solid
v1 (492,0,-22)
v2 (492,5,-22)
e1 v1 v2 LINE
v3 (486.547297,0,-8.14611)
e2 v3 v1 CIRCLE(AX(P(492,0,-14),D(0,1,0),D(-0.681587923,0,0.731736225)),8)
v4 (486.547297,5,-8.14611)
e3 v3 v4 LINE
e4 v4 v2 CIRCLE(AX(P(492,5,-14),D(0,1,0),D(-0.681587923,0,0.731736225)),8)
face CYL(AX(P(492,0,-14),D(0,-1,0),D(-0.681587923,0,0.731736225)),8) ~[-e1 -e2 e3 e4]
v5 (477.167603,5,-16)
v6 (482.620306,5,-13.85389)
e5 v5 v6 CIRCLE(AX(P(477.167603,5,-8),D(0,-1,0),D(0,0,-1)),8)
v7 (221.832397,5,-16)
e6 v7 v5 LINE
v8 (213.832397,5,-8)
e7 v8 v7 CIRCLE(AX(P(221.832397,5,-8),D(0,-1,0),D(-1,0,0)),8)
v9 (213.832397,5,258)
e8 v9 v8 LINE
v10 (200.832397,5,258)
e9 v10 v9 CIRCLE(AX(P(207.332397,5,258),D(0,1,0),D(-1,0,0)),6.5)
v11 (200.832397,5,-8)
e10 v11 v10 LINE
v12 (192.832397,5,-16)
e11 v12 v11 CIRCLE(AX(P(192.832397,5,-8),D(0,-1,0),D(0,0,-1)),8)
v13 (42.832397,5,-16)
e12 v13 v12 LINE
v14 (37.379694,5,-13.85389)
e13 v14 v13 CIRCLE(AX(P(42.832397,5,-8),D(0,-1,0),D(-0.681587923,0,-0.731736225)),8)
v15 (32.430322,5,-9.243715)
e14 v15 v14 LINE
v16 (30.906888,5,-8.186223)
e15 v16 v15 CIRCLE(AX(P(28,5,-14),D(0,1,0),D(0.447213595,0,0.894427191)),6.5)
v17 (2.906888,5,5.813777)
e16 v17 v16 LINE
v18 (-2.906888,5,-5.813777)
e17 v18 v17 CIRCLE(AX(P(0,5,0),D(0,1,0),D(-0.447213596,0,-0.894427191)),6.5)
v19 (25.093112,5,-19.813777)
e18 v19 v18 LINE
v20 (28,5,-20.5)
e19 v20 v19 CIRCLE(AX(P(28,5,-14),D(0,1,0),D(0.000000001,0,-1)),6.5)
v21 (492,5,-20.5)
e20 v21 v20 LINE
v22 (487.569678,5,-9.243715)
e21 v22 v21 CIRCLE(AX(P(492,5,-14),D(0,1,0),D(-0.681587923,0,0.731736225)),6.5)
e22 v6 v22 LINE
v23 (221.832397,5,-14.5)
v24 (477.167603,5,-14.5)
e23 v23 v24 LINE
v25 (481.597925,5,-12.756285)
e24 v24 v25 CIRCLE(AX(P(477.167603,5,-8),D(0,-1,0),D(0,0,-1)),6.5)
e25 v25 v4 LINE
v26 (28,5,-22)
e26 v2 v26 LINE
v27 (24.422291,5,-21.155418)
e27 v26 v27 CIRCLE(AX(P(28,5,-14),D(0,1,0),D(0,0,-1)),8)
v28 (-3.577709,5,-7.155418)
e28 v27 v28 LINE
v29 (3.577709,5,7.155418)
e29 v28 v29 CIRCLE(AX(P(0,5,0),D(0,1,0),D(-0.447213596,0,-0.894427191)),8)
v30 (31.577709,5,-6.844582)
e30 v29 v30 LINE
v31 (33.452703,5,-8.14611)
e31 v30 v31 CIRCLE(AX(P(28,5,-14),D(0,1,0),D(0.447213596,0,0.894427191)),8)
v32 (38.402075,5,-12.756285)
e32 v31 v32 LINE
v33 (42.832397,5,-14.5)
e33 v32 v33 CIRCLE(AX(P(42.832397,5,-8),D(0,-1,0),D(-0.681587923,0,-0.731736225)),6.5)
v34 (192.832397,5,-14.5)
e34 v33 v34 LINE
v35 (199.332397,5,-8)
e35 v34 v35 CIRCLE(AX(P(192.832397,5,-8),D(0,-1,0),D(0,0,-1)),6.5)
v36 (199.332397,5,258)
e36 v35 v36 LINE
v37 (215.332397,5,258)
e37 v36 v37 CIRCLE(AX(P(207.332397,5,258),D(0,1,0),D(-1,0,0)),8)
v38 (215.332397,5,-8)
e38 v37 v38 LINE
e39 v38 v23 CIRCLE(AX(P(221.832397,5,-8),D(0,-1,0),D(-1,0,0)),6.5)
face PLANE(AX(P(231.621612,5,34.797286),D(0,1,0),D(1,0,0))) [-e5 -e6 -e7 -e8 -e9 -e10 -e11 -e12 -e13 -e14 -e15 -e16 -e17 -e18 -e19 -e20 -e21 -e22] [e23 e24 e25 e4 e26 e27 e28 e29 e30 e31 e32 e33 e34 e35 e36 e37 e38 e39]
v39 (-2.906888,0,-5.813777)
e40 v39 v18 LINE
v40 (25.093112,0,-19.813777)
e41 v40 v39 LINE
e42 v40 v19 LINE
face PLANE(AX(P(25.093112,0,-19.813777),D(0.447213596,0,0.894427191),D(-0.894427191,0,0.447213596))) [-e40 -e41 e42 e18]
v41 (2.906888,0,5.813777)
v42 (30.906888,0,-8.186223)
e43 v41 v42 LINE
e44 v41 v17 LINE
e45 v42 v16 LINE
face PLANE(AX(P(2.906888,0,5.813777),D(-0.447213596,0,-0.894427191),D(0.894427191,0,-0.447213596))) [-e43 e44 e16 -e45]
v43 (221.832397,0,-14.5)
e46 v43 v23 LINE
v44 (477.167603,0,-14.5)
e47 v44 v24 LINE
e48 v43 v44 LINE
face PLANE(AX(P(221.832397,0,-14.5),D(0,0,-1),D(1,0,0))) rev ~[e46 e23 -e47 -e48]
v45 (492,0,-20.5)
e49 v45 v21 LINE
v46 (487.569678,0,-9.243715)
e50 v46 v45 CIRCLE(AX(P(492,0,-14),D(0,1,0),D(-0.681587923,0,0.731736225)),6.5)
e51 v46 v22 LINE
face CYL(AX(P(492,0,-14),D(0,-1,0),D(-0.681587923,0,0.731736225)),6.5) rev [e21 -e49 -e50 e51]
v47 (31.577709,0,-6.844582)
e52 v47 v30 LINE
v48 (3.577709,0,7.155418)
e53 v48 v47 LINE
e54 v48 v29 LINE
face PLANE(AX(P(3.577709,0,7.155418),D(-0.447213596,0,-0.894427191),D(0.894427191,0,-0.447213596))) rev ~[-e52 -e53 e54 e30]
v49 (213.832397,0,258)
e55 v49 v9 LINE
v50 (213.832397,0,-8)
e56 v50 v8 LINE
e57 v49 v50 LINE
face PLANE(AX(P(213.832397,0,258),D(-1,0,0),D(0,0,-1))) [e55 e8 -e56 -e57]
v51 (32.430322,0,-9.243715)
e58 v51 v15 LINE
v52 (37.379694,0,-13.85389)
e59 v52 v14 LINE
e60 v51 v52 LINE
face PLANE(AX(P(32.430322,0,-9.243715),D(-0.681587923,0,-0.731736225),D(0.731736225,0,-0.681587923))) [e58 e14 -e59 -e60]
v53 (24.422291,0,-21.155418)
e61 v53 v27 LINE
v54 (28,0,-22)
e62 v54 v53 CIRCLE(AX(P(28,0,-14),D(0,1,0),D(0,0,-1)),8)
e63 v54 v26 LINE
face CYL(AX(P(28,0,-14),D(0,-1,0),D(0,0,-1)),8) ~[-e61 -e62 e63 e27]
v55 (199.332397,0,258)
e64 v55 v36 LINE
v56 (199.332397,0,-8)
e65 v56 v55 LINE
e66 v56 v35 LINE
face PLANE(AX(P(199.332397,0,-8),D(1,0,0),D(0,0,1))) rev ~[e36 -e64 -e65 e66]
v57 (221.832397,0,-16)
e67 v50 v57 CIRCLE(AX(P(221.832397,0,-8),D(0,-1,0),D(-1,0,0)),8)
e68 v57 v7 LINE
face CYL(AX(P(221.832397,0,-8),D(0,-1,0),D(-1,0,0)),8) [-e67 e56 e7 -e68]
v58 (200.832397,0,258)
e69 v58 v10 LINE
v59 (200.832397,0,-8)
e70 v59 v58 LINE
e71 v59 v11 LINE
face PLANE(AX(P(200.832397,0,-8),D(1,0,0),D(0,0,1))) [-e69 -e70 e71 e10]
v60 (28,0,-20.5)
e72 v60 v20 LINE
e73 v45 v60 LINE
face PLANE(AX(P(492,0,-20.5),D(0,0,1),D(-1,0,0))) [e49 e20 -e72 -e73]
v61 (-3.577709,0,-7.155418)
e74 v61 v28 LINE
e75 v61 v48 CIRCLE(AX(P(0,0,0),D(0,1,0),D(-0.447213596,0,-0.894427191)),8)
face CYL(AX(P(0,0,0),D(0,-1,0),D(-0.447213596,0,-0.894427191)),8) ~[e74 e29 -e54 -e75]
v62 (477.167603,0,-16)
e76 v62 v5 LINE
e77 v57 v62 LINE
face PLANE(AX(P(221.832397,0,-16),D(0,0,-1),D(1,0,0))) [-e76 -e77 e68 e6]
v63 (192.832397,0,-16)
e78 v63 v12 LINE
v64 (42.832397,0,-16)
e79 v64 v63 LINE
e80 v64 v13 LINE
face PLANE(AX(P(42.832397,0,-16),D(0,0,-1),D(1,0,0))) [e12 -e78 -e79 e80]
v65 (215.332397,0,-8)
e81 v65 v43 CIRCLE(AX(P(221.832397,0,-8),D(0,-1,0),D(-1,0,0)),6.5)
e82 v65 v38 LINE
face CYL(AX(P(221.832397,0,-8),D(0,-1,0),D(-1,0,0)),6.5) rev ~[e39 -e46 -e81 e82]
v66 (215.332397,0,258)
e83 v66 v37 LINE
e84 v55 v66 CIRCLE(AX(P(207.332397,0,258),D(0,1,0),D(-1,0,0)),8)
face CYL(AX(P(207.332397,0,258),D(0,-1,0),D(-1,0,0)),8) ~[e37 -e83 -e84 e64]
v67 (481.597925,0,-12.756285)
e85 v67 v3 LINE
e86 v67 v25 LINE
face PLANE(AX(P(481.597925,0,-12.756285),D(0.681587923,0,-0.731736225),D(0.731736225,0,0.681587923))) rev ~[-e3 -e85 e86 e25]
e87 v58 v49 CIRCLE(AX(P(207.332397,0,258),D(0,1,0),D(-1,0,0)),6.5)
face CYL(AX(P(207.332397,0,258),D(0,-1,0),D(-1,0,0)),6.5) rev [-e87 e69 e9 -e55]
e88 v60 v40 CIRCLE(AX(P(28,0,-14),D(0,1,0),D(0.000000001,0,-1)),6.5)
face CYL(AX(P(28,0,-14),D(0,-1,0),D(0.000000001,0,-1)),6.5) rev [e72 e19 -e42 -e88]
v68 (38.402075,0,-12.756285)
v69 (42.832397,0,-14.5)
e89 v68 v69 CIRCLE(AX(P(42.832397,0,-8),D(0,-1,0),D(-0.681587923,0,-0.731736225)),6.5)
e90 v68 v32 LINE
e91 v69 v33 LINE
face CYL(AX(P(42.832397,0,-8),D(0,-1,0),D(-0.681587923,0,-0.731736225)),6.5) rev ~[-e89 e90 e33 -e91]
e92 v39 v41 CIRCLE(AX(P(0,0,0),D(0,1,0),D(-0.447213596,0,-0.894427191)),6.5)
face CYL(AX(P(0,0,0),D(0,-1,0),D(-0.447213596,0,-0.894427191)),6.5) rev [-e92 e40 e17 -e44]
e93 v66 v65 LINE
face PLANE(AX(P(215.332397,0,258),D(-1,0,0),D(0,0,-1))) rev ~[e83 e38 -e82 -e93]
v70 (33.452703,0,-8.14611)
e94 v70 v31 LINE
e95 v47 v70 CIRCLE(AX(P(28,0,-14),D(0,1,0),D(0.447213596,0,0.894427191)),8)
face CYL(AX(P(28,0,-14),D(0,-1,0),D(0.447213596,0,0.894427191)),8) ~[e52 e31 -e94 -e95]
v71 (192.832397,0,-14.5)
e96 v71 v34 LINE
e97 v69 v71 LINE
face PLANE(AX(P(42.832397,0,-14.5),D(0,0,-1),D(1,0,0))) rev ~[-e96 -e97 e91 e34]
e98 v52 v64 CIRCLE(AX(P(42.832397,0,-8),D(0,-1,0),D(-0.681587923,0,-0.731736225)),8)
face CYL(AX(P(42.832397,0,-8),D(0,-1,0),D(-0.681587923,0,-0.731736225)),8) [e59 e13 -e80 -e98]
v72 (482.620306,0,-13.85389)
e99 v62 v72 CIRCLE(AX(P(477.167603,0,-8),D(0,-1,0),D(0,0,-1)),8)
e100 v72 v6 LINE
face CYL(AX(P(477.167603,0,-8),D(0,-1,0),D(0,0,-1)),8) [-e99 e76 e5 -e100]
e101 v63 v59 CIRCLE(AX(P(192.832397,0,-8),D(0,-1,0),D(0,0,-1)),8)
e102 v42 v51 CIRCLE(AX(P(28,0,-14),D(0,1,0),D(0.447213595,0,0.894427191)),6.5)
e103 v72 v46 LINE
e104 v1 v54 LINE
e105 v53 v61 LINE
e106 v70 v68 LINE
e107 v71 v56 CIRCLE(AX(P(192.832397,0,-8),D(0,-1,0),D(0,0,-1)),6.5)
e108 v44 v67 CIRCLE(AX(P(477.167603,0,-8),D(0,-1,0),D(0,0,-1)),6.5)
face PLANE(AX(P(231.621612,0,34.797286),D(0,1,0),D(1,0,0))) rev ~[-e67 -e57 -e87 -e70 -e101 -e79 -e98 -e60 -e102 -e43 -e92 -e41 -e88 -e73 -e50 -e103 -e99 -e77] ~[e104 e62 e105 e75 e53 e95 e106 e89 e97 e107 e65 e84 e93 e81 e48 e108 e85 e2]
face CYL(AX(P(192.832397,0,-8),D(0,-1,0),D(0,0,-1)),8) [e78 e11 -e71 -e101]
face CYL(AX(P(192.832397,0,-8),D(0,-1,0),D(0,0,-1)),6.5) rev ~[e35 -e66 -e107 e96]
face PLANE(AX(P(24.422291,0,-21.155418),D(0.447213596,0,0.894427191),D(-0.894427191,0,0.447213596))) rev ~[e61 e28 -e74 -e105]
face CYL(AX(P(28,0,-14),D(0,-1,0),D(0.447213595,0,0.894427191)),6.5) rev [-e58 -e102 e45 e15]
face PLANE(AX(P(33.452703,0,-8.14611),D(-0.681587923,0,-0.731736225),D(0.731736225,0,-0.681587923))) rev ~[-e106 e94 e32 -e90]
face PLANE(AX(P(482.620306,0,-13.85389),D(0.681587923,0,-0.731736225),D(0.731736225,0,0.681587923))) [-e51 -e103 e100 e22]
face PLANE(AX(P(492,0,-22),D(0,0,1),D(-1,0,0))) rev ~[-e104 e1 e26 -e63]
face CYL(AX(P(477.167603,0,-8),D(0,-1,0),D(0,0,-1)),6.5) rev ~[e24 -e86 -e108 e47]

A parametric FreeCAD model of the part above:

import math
import FreeCAD as App
import Part
import Sketcher
from FreeCAD import Vector
Q = App.Units.Quantity

doc = App.newDocument("Part")
body = doc.addObject("PartDesign::Body", "Body")

# Sketch on XZ plane
sketch1 = body.newObject("Sketcher::SketchObject", "Sketch")
sketch1.AttachmentSupport = (doc.getObject("XZ_Plane"), [""])
sketch1.MapMode = "FlatFace"
sketch1.addGeometry([
    Part.LineSegment(Vector(3.577709, 7.155418, 0), Vector(31.577709, -6.844582, 0)),  # 0
    Part.ArcOfCircle(Part.Circle(Vector(28, -14, 0), Vector(0, 0, 1), 8), math.radians(47.032146), math.radians(63.434949)),  # 1
    Part.LineSegment(Vector(33.452703, -8.14611, 0), Vector(38.402075, -12.756285, 0)),  # 2
    Part.ArcOfCircle(Part.Circle(Vector(42.832397, -8, 0), Vector(0, 0, 1), 6.5), math.radians(-132.967854), math.radians(-90)),  # 3
    Part.LineSegment(Vector(42.832397, -14.5, 0), Vector(192.832397, -14.5, 0)),  # 4
    Part.ArcOfCircle(Part.Circle(Vector(192.832397, -8, 0), Vector(0, 0, 1), 6.5), math.radians(-90), math.radians(0)),  # 5
    Part.LineSegment(Vector(199.332397, -8, 0), Vector(199.332397, 258, 0)),  # 6
    Part.ArcOfCircle(Part.Circle(Vector(207.332397, 258, 0), Vector(0, 0, 1), 8), math.radians(0), math.radians(180)),  # 7
    Part.LineSegment(Vector(215.332397, 258, 0), Vector(215.332397, -8, 0)),  # 8
    Part.ArcOfCircle(Part.Circle(Vector(221.832397, -8, 0), Vector(0, 0, 1), 6.5), math.radians(180), math.radians(270)),  # 9
    Part.LineSegment(Vector(221.832397, -14.5, 0), Vector(477.167603, -14.5, 0)),  # 10
    Part.ArcOfCircle(Part.Circle(Vector(477.167603, -8, 0), Vector(0, 0, 1), 6.5), math.radians(-90), math.radians(-47.032146)),  # 11
    Part.LineSegment(Vector(481.597925, -12.756285, 0), Vector(486.547297, -8.14611, 0)),  # 12
    Part.ArcOfCircle(Part.Circle(Vector(492, -14, 0), Vector(0, 0, 1), 8), math.radians(-90), math.radians(132.967854)),  # 13
    Part.LineSegment(Vector(492, -22, 0), Vector(28, -22, 0)),  # 14
    Part.ArcOfCircle(Part.Circle(Vector(28, -14, 0), Vector(0, 0, 1), 8), math.radians(-116.565051), math.radians(-90)),  # 15
    Part.LineSegment(Vector(24.422291, -21.155418, 0), Vector(-3.577709, -7.155418, 0)),  # 16
    Part.ArcOfCircle(Part.Circle(Vector(0, 0, 0), Vector(0, 0, 1), 8), math.radians(63.434949), math.radians(243.434949)),  # 17
    Part.LineSegment(Vector(30.906888, -8.186223, 0), Vector(2.906888, 5.813777, 0)),  # 18
    Part.ArcOfCircle(Part.Circle(Vector(0, 0, 0), Vector(0, 0, 1), 6.5), math.radians(63.434949), math.radians(243.434949)),  # 19
    Part.LineSegment(Vector(-2.906888, -5.813777, 0), Vector(25.093112, -19.813777, 0)),  # 20
    Part.ArcOfCircle(Part.Circle(Vector(28, -14, 0), Vector(0, 0, 1), 6.5), math.radians(-116.565051), math.radians(-90)),  # 21
    Part.LineSegment(Vector(28, -20.5, 0), Vector(492, -20.5, 0)),  # 22
    Part.ArcOfCircle(Part.Circle(Vector(492, -14, 0), Vector(0, 0, 1), 6.5), math.radians(-90), math.radians(132.967854)),  # 23
    Part.LineSegment(Vector(487.569678, -9.243715, 0), Vector(482.620306, -13.85389, 0)),  # 24
    Part.ArcOfCircle(Part.Circle(Vector(477.167603, -8, 0), Vector(0, 0, 1), 8), math.radians(-90), math.radians(-47.032146)),  # 25
    Part.LineSegment(Vector(477.167603, -16, 0), Vector(221.832397, -16, 0)),  # 26
    Part.ArcOfCircle(Part.Circle(Vector(221.832397, -8, 0), Vector(0, 0, 1), 8), math.radians(-180), math.radians(-90)),  # 27
    Part.LineSegment(Vector(213.832397, -8, 0), Vector(213.832397, 258, 0)),  # 28
    Part.ArcOfCircle(Part.Circle(Vector(207.332397, 258, 0), Vector(0, 0, 1), 6.5), math.radians(0), math.radians(180)),  # 29
    Part.LineSegment(Vector(200.832397, 258, 0), Vector(200.832397, -8, 0)),  # 30
    Part.ArcOfCircle(Part.Circle(Vector(192.832397, -8, 0), Vector(0, 0, 1), 8), math.radians(-90), math.radians(0)),  # 31
    Part.LineSegment(Vector(192.832397, -16, 0), Vector(42.832397, -16, 0)),  # 32
    Part.ArcOfCircle(Part.Circle(Vector(42.832397, -8, 0), Vector(0, 0, 1), 8), math.radians(-132.967854), math.radians(-90)),  # 33
    Part.LineSegment(Vector(37.379694, -13.85389, 0), Vector(32.430322, -9.243715, 0)),  # 34
    Part.ArcOfCircle(Part.Circle(Vector(28, -14, 0), Vector(0, 0, 1), 6.5), math.radians(47.032146), math.radians(63.434949)),  # 35
], False)
sketch1.addConstraint([
    Sketcher.Constraint("Tangent", 0, 2, 1, 2),
    Sketcher.Constraint("Tangent", 1, 1, 2, 1),
    Sketcher.Constraint("Tangent", 2, 2, 3, 1),
    Sketcher.Constraint("Tangent", 3, 2, 4, 1),
    Sketcher.Constraint("Tangent", 4, 2, 5, 1),
    Sketcher.Constraint("Tangent", 5, 2, 6, 1),
    Sketcher.Constraint("Tangent", 6, 2, 7, 2),
    Sketcher.Constraint("Tangent", 7, 1, 8, 1),
    Sketcher.Constraint("Tangent", 8, 2, 9, 1),
    Sketcher.Constraint("Tangent", 9, 2, 10, 1),
    Sketcher.Constraint("Tangent", 10, 2, 11, 1),
    Sketcher.Constraint("Tangent", 11, 2, 12, 1),
    Sketcher.Constraint("Tangent", 12, 2, 13, 2),
    Sketcher.Constraint("Tangent", 13, 1, 14, 1),
    Sketcher.Constraint("Tangent", 14, 2, 15, 2),
    Sketcher.Constraint("Tangent", 15, 1, 16, 1),
    Sketcher.Constraint("Tangent", 16, 2, 17, 2),
    Sketcher.Constraint("Tangent", 17, 1, 0, 1),
    Sketcher.Constraint("Tangent", 18, 2, 19, 1),
    Sketcher.Constraint("Tangent", 19, 2, 20, 1),
    Sketcher.Constraint("Tangent", 20, 2, 21, 1),
    Sketcher.Constraint("Tangent", 21, 2, 22, 1),
    Sketcher.Constraint("Tangent", 22, 2, 23, 1),
    Sketcher.Constraint("Tangent", 23, 2, 24, 1),
    Sketcher.Constraint("Tangent", 24, 2, 25, 2),
    Sketcher.Constraint("Tangent", 25, 1, 26, 1),
    Sketcher.Constraint("Tangent", 26, 2, 27, 2),
    Sketcher.Constraint("Tangent", 27, 1, 28, 1),
    Sketcher.Constraint("Tangent", 28, 2, 29, 1),
    Sketcher.Constraint("Tangent", 29, 2, 30, 1),
    Sketcher.Constraint("Tangent", 30, 2, 31, 2),
    Sketcher.Constraint("Tangent", 31, 1, 32, 1),
    Sketcher.Constraint("Tangent", 32, 2, 33, 2),
    Sketcher.Constraint("Tangent", 33, 1, 34, 1),
    Sketcher.Constraint("Tangent", 34, 2, 35, 1),
    Sketcher.Constraint("Tangent", 35, 2, 18, 1),
    Sketcher.Constraint("Horizontal", 4),
    Sketcher.Constraint("Vertical", 6),
    Sketcher.Constraint("Vertical", 8),
    Sketcher.Constraint("Horizontal", 10),
    Sketcher.Constraint("Horizontal", 14),
    Sketcher.Constraint("Horizontal", 22),
    Sketcher.Constraint("Horizontal", 26),
    Sketcher.Constraint("Vertical", 28),
    Sketcher.Constraint("Vertical", 30),
    Sketcher.Constraint("Horizontal", 32),
    Sketcher.Constraint("Coincident", 17, 3, -1, 1),
    Sketcher.Constraint("Coincident", 19, 3, -1, 1),
    Sketcher.Constraint("Coincident", 15, 3, 1, 3),
    Sketcher.Constraint("Coincident", 21, 3, 1, 3),
    Sketcher.Constraint("Coincident", 23, 3, 13, 3),
    Sketcher.Constraint("Coincident", 25, 3, 11, 3),
    Sketcher.Constraint("Coincident", 27, 3, 9, 3),
    Sketcher.Constraint("Coincident", 29, 3, 7, 3),
    Sketcher.Constraint("Coincident", 31, 3, 5, 3),
    Sketcher.Constraint("Coincident", 33, 3, 3, 3),
    Sketcher.Constraint("Coincident", 35, 3, 1, 3),
    Sketcher.Constraint("Equal", 3, 5),
    Sketcher.Constraint("Equal", 1, 7),
    Sketcher.Constraint("Equal", 5, 9),
    Sketcher.Constraint("Equal", 9, 11),
    Sketcher.Constraint("Equal", 7, 13),
    Sketcher.Constraint("Equal", 13, 15),
    Sketcher.Constraint("Equal", 15, 17),
    Sketcher.Constraint("Equal", 11, 19),
    Sketcher.Constraint("Equal", 19, 21),
    Sketcher.Constraint("Equal", 17, 25),
    Sketcher.Constraint("Equal", 29, 35),
    Sketcher.Constraint("Horizontal", 5, 3, 9, 3),
    Sketcher.Constraint("Horizontal", 2, 2, 11, 2),
    Sketcher.Constraint("Radius", 1, Q("8 mm")),
    Sketcher.Constraint("Radius", 3, Q("6.5 mm")),
    Sketcher.Constraint("DistanceX", 4, 1, 4, 2, Q("150 mm")),
    Sketcher.Constraint("DistanceX", 14, 2, 14, 1, Q("464 mm")),
    Sketcher.Constraint("DistanceY", 6, 1, 6, 2, Q("266 mm")),
    Sketcher.Constraint("DistanceX", -1, 1, 1, 3, Q("28 mm")),
    Sketcher.Constraint("DistanceY", 1, 3, -1, 1, Q("14 mm")),
    Sketcher.Constraint("DistanceY", 3, 3, -1, 1, Q("8 mm")),
    Sketcher.Constraint("DistanceX", 10, 1, 10, 2, Q("255.335206 mm")),
])
pad1 = body.newObject("PartDesign::Pad", "Pad")
pad1.Profile = sketch1
pad1.Length = 5
pad1.Reversed = True

doc.recompute()
